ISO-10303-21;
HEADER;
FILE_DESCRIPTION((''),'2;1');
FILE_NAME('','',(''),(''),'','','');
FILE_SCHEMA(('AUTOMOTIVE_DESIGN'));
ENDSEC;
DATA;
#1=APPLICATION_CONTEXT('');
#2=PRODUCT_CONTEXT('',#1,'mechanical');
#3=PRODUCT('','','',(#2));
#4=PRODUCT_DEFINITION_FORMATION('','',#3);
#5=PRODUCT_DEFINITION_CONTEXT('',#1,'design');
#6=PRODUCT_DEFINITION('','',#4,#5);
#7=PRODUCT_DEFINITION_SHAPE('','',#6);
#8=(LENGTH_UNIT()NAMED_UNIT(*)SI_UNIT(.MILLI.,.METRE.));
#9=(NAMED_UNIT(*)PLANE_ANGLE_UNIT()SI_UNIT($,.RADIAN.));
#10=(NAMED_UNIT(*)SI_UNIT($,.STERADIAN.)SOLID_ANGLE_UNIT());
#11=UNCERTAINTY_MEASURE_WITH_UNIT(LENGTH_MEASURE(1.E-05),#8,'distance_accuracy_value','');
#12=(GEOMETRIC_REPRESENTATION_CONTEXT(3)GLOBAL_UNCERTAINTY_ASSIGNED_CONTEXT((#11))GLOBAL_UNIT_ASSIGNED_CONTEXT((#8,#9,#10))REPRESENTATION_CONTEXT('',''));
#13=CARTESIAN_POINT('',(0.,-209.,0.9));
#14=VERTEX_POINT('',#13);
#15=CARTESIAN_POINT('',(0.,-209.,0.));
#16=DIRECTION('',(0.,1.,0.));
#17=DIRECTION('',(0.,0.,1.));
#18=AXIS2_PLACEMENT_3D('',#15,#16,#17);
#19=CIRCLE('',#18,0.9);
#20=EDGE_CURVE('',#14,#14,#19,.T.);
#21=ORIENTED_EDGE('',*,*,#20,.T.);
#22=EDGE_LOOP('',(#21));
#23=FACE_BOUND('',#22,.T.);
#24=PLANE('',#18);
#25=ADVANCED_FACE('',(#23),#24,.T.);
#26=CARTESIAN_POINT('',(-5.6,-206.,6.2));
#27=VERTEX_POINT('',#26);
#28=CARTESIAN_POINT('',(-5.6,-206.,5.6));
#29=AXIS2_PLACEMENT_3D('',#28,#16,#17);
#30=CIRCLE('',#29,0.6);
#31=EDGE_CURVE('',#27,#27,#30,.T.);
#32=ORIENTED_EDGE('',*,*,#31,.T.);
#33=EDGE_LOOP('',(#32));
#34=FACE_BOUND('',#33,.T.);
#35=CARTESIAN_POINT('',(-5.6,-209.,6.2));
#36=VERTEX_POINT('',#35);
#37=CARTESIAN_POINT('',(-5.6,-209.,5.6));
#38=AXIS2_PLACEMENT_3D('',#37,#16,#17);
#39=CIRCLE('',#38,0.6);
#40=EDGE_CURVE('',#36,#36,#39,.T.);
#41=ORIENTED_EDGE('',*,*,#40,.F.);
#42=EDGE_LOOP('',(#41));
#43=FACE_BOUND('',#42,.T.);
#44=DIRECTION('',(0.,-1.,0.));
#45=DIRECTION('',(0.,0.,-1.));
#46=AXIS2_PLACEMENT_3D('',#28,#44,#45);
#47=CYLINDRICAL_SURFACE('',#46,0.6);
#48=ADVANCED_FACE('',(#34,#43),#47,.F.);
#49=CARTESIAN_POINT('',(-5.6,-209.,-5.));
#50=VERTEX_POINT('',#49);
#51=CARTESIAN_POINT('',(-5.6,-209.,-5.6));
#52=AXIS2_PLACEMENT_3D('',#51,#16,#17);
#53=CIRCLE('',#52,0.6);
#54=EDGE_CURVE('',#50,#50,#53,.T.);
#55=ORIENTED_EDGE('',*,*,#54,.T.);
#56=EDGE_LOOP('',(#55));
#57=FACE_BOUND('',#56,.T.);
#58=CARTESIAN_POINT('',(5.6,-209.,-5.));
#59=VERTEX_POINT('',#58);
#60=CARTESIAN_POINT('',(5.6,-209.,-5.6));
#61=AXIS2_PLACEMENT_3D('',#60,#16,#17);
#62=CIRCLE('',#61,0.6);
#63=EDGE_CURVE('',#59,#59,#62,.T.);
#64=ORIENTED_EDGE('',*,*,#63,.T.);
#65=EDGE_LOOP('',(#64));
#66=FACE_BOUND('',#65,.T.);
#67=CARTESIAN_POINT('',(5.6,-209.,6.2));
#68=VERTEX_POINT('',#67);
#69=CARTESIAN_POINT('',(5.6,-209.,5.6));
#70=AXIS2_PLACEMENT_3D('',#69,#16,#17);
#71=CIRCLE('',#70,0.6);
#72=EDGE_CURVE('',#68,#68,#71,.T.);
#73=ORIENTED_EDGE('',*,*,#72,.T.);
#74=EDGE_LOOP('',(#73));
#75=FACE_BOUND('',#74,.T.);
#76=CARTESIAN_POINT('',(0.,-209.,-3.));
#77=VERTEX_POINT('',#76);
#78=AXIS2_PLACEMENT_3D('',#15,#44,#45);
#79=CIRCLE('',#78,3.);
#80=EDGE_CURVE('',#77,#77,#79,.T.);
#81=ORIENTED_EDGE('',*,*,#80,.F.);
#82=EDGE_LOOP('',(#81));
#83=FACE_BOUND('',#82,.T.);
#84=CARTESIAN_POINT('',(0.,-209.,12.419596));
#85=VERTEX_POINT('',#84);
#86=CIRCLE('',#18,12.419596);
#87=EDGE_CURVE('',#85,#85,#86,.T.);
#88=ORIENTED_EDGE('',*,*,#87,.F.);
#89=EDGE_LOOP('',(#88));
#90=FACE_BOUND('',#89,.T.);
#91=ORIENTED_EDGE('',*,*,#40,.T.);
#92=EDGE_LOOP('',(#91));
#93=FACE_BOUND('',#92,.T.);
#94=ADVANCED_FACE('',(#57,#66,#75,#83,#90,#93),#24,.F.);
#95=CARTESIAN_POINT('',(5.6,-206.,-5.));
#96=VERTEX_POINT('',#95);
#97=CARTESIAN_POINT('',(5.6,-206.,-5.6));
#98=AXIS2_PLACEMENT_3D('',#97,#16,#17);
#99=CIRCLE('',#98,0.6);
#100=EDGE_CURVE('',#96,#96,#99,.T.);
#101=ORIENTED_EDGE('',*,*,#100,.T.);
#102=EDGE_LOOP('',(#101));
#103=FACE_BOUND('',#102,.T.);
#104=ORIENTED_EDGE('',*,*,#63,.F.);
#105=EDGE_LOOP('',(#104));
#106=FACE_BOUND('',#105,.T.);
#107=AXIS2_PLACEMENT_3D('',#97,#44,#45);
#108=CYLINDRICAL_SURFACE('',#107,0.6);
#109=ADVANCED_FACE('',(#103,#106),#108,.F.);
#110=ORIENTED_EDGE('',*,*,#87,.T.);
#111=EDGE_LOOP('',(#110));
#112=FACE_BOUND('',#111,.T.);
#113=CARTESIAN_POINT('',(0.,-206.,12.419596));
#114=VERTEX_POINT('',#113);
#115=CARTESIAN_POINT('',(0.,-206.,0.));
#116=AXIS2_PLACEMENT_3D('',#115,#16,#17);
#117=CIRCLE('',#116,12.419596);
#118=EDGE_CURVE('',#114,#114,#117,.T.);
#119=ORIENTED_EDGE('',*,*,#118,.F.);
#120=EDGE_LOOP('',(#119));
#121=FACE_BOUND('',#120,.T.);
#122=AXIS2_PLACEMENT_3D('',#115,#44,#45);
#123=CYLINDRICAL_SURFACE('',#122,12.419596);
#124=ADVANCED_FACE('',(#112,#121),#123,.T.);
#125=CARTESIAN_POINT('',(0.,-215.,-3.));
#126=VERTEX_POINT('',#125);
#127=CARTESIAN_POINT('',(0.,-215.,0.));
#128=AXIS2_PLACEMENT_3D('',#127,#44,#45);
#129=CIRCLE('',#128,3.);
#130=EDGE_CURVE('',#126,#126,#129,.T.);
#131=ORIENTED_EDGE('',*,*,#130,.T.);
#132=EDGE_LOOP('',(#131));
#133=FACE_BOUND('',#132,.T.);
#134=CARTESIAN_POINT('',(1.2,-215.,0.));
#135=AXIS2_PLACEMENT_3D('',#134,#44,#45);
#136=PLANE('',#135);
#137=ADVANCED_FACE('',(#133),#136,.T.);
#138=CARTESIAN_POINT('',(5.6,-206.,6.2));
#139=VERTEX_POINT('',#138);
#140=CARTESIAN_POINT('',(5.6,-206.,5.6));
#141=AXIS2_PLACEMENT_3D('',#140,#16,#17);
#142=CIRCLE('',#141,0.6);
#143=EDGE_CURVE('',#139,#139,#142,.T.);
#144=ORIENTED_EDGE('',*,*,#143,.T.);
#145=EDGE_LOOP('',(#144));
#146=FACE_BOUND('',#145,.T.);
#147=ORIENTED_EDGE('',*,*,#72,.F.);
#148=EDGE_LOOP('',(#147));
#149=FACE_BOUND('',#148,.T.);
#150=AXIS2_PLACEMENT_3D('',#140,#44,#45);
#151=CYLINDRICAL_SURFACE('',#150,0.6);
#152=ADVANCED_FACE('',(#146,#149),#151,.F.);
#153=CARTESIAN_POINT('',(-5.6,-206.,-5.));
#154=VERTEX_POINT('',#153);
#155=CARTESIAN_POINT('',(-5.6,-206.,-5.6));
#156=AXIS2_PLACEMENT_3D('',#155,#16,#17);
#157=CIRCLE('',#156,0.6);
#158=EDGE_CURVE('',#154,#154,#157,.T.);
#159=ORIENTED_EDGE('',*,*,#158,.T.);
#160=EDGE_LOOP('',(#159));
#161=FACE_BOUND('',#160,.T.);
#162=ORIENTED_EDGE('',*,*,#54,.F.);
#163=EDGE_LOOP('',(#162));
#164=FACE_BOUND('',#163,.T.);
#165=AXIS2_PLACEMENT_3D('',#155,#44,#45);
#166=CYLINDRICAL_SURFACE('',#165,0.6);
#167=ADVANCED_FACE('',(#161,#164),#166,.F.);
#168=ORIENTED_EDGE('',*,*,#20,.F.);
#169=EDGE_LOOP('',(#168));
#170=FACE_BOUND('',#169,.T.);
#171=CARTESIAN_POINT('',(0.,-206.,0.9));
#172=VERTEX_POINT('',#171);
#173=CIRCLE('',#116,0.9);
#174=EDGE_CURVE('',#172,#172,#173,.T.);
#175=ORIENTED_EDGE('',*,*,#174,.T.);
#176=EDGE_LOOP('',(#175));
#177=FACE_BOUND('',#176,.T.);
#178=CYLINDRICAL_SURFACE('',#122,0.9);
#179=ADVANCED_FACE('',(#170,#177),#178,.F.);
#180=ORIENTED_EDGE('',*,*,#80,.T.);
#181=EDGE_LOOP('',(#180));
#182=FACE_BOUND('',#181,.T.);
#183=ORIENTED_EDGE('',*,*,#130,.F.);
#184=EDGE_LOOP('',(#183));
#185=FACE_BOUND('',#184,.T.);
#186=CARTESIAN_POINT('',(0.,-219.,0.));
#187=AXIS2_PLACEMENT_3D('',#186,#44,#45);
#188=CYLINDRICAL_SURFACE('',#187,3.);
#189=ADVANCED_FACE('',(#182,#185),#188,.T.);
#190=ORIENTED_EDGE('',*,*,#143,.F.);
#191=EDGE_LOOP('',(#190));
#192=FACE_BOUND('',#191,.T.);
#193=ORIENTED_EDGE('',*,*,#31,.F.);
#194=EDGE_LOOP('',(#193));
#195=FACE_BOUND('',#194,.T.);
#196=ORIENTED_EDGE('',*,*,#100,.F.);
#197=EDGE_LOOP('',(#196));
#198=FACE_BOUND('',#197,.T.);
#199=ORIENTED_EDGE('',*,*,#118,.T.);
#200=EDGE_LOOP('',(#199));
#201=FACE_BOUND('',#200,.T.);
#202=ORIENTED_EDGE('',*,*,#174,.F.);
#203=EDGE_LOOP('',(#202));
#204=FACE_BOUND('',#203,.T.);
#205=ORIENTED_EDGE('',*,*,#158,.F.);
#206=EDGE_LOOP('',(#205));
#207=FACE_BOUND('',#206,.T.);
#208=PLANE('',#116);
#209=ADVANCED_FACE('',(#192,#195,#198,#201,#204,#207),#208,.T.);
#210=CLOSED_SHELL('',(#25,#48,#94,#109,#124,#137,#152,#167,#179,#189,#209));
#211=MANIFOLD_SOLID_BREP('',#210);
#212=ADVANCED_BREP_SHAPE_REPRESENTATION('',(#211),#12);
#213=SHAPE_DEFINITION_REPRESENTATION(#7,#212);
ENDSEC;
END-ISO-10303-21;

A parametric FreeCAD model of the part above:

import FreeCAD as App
import Part
import Sketcher

V = App.Vector


def add_polygon(sketch, points):
    """Adds a closed chain of lines whose ends are joined by coincident constraints."""
    first, n = sketch.GeometryCount, len(points)
    for a, b in zip(points, points[1:] + points[:1]):
        sketch.addGeometry(Part.LineSegment(App.Vector(*a, 0), App.Vector(*b, 0)), False)
    for i in range(n):
        sketch.addConstraint(Sketcher.Constraint("Coincident", first + i, 2, first + (i + 1) % n, 1))

doc = App.newDocument("Part")
body = doc.addObject("PartDesign::Body", "Body")

sketch1 = doc.addObject("Sketcher::SketchObject", "Sketch")
body.addObject(sketch1)
sketch1.AttachmentSupport = (doc.XZ_Plane, [""])
sketch1.MapMode = "FlatFace"
sketch1.AttachmentOffset = App.Placement(V(0, 0, 209), App.Rotation())
sketch1.addGeometry([
    Part.Circle(V(0, 0, 0), V(0, 0, 1), 12.4),
    Part.Circle(V(-5.6, -5.6, 0), V(0, 0, 1), 0.6),
    Part.Circle(V(-5.6, 5.6, 0), V(0, 0, 1), 0.6),
    Part.Circle(V(5.6, -5.6, 0), V(0, 0, 1), 0.6),
    Part.Circle(V(0, 0, 0), V(0, 0, 1), 0.9),
    Part.Circle(V(5.6, 5.6, 0), V(0, 0, 1), 0.6),
], False)
sketch1.addConstraint([
    Sketcher.Constraint("Coincident", 0, 3, -1, 1),
    Sketcher.Constraint("Coincident", 4, 3, -1, 1),
    Sketcher.Constraint("Equal", 1, 2),
    Sketcher.Constraint("Equal", 2, 3),
    Sketcher.Constraint("Equal", 3, 5),
    Sketcher.Constraint("Symmetric", 2, 3, 3, 3, -1, 1),
    Sketcher.Constraint("Symmetric", 1, 3, 5, 3, -1, 1),
    Sketcher.Constraint("Symmetric", 1, 3, 3, 3, -2),
    Sketcher.Constraint("Diameter", 1, 1.2),
    Sketcher.Constraint("Diameter", 4, 1.8),
    Sketcher.Constraint("DistanceX", 1, 3, -1, 1, 5.6),
    Sketcher.Constraint("DistanceY", 1, 3, -1, 1, 5.6),
    Sketcher.Constraint("Diameter", 0, 24.839192),
])
pad1 = doc.addObject("PartDesign::Pad", "Pad")
body.addObject(pad1)
pad1.Profile = sketch1
pad1.Length = 3
pad1.Reversed = True

sketch2 = doc.addObject("Sketcher::SketchObject", "Sketch001")
body.addObject(sketch2)
sketch2.AttachmentSupport = (doc.XY_Plane, [""])
sketch2.MapMode = "FlatFace"
add_polygon(sketch2, [(3, -209), (0, -209), (0, -215), (3, -215)])
sketch2.addConstraint([
    Sketcher.Constraint("Horizontal", 0),
    Sketcher.Constraint("Vertical", 1),
    Sketcher.Constraint("Horizontal", 2),
    Sketcher.Constraint("Vertical", 3),
    Sketcher.Constraint("PointOnObject", 0, 2, -2),
    Sketcher.Constraint("DistanceX", 0, 2, 0, 1, 3.0),
    Sketcher.Constraint("DistanceY", 1, 2, 1, 1, 6.0),
    Sketcher.Constraint("DistanceY", 0, 2, -1, 1, 209.0),
])
revolution = doc.addObject("PartDesign::Revolution", "Revolution")
body.addObject(revolution)
revolution.Profile = sketch2
revolution.ReferenceAxis = (sketch2, ["V_Axis"])
revolution.Angle = 360

doc.recompute()
